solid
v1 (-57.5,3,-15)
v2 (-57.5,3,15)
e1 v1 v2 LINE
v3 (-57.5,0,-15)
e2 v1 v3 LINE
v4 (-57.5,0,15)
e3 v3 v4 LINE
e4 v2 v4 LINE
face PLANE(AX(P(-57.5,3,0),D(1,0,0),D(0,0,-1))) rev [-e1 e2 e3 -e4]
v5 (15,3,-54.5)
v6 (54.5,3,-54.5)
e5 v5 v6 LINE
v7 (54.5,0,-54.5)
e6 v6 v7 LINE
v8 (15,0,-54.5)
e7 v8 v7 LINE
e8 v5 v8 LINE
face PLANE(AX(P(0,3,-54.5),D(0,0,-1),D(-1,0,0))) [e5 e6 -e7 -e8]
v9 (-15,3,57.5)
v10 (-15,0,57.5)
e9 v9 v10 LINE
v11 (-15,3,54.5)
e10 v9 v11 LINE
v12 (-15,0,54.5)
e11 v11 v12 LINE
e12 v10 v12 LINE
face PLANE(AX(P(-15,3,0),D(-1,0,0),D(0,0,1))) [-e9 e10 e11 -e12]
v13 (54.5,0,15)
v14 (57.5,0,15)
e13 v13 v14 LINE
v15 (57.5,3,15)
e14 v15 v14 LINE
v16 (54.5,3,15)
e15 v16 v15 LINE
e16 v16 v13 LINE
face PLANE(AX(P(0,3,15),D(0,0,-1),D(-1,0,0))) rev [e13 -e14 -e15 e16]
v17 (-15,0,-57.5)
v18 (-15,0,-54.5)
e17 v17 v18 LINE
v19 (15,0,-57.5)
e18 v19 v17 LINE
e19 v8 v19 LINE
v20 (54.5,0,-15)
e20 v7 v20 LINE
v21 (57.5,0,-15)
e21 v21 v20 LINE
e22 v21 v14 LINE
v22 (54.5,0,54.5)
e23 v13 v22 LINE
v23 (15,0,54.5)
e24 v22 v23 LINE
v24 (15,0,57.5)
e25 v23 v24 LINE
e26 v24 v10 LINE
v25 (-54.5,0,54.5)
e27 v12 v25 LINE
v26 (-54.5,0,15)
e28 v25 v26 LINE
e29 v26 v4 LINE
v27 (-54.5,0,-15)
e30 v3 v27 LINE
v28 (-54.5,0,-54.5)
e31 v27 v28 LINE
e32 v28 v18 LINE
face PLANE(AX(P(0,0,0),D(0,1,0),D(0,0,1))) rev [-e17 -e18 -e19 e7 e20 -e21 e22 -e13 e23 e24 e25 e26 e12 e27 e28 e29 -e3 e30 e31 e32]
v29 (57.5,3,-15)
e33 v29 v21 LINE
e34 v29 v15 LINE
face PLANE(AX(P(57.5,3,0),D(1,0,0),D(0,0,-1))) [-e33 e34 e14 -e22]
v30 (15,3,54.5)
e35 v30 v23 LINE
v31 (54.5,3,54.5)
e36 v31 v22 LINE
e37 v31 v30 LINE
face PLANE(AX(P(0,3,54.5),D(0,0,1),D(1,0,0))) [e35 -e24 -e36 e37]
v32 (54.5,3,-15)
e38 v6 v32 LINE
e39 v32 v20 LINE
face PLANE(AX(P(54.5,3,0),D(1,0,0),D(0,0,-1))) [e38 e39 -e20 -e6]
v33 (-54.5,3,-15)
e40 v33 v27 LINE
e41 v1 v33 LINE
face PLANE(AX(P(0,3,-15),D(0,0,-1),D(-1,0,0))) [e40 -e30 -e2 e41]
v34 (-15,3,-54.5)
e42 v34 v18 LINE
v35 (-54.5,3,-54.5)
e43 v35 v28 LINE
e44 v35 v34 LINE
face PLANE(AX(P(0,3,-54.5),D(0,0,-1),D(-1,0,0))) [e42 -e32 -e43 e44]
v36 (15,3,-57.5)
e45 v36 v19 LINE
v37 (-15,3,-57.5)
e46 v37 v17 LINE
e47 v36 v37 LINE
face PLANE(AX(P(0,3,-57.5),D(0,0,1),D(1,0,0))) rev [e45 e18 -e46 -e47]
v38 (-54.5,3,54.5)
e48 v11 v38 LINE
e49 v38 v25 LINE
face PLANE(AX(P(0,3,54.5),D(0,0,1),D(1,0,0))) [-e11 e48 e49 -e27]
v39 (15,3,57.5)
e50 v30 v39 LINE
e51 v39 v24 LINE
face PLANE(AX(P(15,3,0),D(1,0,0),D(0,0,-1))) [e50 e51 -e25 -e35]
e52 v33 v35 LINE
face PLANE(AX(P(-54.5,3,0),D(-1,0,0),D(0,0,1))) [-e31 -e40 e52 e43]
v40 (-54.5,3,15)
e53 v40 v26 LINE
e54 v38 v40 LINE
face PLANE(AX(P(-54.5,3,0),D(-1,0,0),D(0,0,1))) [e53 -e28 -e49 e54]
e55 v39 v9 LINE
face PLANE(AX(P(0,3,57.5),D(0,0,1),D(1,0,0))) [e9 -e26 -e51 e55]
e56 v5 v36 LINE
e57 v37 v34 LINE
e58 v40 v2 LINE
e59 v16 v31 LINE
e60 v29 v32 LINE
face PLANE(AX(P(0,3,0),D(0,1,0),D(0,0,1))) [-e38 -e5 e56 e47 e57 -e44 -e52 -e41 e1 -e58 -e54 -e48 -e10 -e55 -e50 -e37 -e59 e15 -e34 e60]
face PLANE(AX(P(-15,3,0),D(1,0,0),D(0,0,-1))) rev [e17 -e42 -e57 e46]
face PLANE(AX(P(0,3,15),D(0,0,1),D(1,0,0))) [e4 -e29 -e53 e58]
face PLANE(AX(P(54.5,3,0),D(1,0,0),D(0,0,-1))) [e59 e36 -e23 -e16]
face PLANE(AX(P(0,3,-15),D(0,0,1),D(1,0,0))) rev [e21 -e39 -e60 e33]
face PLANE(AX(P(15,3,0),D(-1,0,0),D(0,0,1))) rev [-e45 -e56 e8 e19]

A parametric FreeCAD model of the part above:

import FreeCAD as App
import Part
import Sketcher

V = App.Vector

doc = App.newDocument("Part")
body = doc.addObject("PartDesign::Body", "Body")

# Sketch on XZ plane
sketch1 = body.newObject("Sketcher::SketchObject", "Sketch")
sketch1.AttachmentSupport = (doc.getObject("XZ_Plane"), [""])
sketch1.MapMode = "FlatFace"
sketch1.addGeometry(Part.LineSegment(V(-15, 54.5, 0), V(-15, 57.5, 0)), False)
sketch1.addGeometry(Part.LineSegment(V(-15, 57.5, 0), V(15, 57.5, 0)), False)
sketch1.addGeometry(Part.LineSegment(V(15, 57.5, 0), V(15, 54.5, 0)), False)
sketch1.addGeometry(Part.LineSegment(V(15, 54.5, 0), V(54.5, 54.5, 0)), False)
sketch1.addGeometry(Part.LineSegment(V(54.5, 54.5, 0), V(54.5, 15, 0)), False)
sketch1.addGeometry(Part.LineSegment(V(54.5, 15, 0), V(57.5, 15, 0)), False)
sketch1.addGeometry(Part.LineSegment(V(57.5, 15, 0), V(57.5, -15, 0)), False)
sketch1.addGeometry(Part.LineSegment(V(57.5, -15, 0), V(54.5, -15, 0)), False)
sketch1.addGeometry(Part.LineSegment(V(54.5, -15, 0), V(54.5, -54.5, 0)), False)
sketch1.addGeometry(Part.LineSegment(V(54.5, -54.5, 0), V(15, -54.5, 0)), False)
sketch1.addGeometry(Part.LineSegment(V(15, -54.5, 0), V(15, -57.5, 0)), False)
sketch1.addGeometry(Part.LineSegment(V(15, -57.5, 0), V(-15, -57.5, 0)), False)
sketch1.addGeometry(Part.LineSegment(V(-15, -57.5, 0), V(-15, -54.5, 0)), False)
sketch1.addGeometry(Part.LineSegment(V(-15, -54.5, 0), V(-54.5, -54.5, 0)), False)
sketch1.addGeometry(Part.LineSegment(V(-54.5, -54.5, 0), V(-54.5, -15, 0)), False)
sketch1.addGeometry(Part.LineSegment(V(-54.5, -15, 0), V(-57.5, -15, 0)), False)
sketch1.addGeometry(Part.LineSegment(V(-57.5, -15, 0), V(-57.5, 15, 0)), False)
sketch1.addGeometry(Part.LineSegment(V(-57.5, 15, 0), V(-54.5, 15, 0)), False)
sketch1.addGeometry(Part.LineSegment(V(-54.5, 15, 0), V(-54.5, 54.5, 0)), False)
sketch1.addGeometry(Part.LineSegment(V(-54.5, 54.5, 0), V(-15, 54.5, 0)), False)
sketch1.addConstraint(Sketcher.Constraint("Coincident", 0, 2, 1, 1))
sketch1.addConstraint(Sketcher.Constraint("Coincident", 1, 2, 2, 1))
sketch1.addConstraint(Sketcher.Constraint("Coincident", 2, 2, 3, 1))
sketch1.addConstraint(Sketcher.Constraint("Coincident", 3, 2, 4, 1))
sketch1.addConstraint(Sketcher.Constraint("Coincident", 4, 2, 5, 1))
sketch1.addConstraint(Sketcher.Constraint("Coincident", 5, 2, 6, 1))
sketch1.addConstraint(Sketcher.Constraint("Coincident", 6, 2, 7, 1))
sketch1.addConstraint(Sketcher.Constraint("Coincident", 7, 2, 8, 1))
sketch1.addConstraint(Sketcher.Constraint("Coincident", 8, 2, 9, 1))
sketch1.addConstraint(Sketcher.Constraint("Coincident", 9, 2, 10, 1))
sketch1.addConstraint(Sketcher.Constraint("Coincident", 10, 2, 11, 1))
sketch1.addConstraint(Sketcher.Constraint("Coincident", 11, 2, 12, 1))
sketch1.addConstraint(Sketcher.Constraint("Coincident", 12, 2, 13, 1))
sketch1.addConstraint(Sketcher.Constraint("Coincident", 13, 2, 14, 1))
sketch1.addConstraint(Sketcher.Constraint("Coincident", 14, 2, 15, 1))
sketch1.addConstraint(Sketcher.Constraint("Coincident", 15, 2, 16, 1))
sketch1.addConstraint(Sketcher.Constraint("Coincident", 16, 2, 17, 1))
sketch1.addConstraint(Sketcher.Constraint("Coincident", 17, 2, 18, 1))
sketch1.addConstraint(Sketcher.Constraint("Coincident", 18, 2, 19, 1))
sketch1.addConstraint(Sketcher.Constraint("Coincident", 19, 2, 0, 1))
sketch1.addConstraint(Sketcher.Constraint("Vertical", 0))
sketch1.addConstraint(Sketcher.Constraint("Horizontal", 1))
sketch1.addConstraint(Sketcher.Constraint("Vertical", 2))
sketch1.addConstraint(Sketcher.Constraint("Horizontal", 3))
sketch1.addConstraint(Sketcher.Constraint("Vertical", 4))
sketch1.addConstraint(Sketcher.Constraint("Horizontal", 5))
sketch1.addConstraint(Sketcher.Constraint("Vertical", 6))
sketch1.addConstraint(Sketcher.Constraint("Horizontal", 7))
sketch1.addConstraint(Sketcher.Constraint("Vertical", 8))
sketch1.addConstraint(Sketcher.Constraint("Horizontal", 9))
sketch1.addConstraint(Sketcher.Constraint("Vertical", 10))
sketch1.addConstraint(Sketcher.Constraint("Horizontal", 11))
sketch1.addConstraint(Sketcher.Constraint("Vertical", 12))
sketch1.addConstraint(Sketcher.Constraint("Horizontal", 13))
sketch1.addConstraint(Sketcher.Constraint("Vertical", 14))
sketch1.addConstraint(Sketcher.Constraint("Horizontal", 15))
sketch1.addConstraint(Sketcher.Constraint("Vertical", 16))
sketch1.addConstraint(Sketcher.Constraint("Horizontal", 17))
sketch1.addConstraint(Sketcher.Constraint("Vertical", 18))
sketch1.addConstraint(Sketcher.Constraint("Horizontal", 19))
sketch1.addConstraint(Sketcher.Constraint("Symmetric", 0, 2, 10, 2, -1, 1))
sketch1.addConstraint(Sketcher.Constraint("Symmetric", 2, 2, 12, 2, -1, 1))
sketch1.addConstraint(Sketcher.Constraint("Symmetric", 4, 2, 14, 2, -1, 1))
sketch1.addConstraint(Sketcher.Constraint("Symmetric", 6, 2, 16, 2, -1, 1))
sketch1.addConstraint(Sketcher.Constraint("Symmetric", 8, 2, 18, 2, -1, 1))
sketch1.addConstraint(Sketcher.Constraint("Symmetric", 9, 2, 12, 2, -2))
sketch1.addConstraint(Sketcher.Constraint("Symmetric", 7, 2, 14, 2, -2))
sketch1.addConstraint(Sketcher.Constraint("Equal", 17, 0))
sketch1.addConstraint(Sketcher.Constraint("Equal", 19, 4))
sketch1.addConstraint(Sketcher.Constraint("Equal", 11, 6))
sketch1.addConstraint(Sketcher.Constraint("DistanceX", 1, 1, 1, 2, 30.0))
sketch1.addConstraint(Sketcher.Constraint("DistanceX", 5, 1, 5, 2, 3.0))
sketch1.addConstraint(Sketcher.Constraint("DistanceX", 3, 1, 3, 2, 39.5))
pad1 = body.newObject("PartDesign::Pad", "Pad")
pad1.Profile = sketch1
pad1.Length = 3
pad1.Reversed = True

doc.recompute()
